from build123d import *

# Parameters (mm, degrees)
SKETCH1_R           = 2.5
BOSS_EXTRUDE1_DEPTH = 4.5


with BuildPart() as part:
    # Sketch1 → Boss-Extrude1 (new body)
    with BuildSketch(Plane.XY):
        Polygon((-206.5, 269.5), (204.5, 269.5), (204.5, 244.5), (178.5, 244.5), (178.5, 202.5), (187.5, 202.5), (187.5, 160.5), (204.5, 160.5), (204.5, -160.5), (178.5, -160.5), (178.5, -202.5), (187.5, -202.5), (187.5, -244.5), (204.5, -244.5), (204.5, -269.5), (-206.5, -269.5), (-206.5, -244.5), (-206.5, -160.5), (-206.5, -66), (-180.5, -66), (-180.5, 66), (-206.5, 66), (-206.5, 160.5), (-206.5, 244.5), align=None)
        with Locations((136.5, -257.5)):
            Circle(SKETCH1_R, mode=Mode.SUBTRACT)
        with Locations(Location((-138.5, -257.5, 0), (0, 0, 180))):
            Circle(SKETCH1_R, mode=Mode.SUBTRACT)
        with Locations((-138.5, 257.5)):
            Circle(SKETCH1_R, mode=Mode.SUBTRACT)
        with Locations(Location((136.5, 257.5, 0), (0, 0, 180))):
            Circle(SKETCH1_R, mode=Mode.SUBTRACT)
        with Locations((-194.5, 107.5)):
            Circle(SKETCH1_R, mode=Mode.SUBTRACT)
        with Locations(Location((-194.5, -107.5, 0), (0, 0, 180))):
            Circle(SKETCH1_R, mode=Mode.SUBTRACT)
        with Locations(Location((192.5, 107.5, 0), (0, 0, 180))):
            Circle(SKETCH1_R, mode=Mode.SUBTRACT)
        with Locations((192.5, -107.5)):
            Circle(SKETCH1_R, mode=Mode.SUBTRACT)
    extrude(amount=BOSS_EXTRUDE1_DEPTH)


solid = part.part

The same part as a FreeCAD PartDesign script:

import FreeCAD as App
import Part
import Sketcher
Q = App.Units.Quantity


def add_polygon(sketch, points):
    """Adds a closed chain of lines whose ends are joined by coincident constraints."""
    first, n = sketch.GeometryCount, len(points)
    for a, b in zip(points, points[1:] + points[:1]):
        sketch.addGeometry(Part.LineSegment(App.Vector(*a, 0), App.Vector(*b, 0)), False)
    for i in range(n):
        sketch.addConstraint(Sketcher.Constraint("Coincident", first + i, 2, first + (i + 1) % n, 1))

doc = App.newDocument("Part")
params = doc.addObject("Spreadsheet::Sheet", "Params")
for row, (alias, value) in enumerate([
    ("sketch1_diameter", "5 mm"),
    ("sketch1_width", "411 mm"),
    ("sketch1_width2", "26 mm"),
    ("sketch1_width3", "17 mm"),
    ("sketch1_height", "132 mm"),
    ("pad1_length", "4.5 mm"),
], start=1):
    params.set(f"A{row}", alias)
    params.set(f"B{row}", "=" + value)
    params.setAlias(f"B{row}", alias)

body = doc.addObject("PartDesign::Body", "Body")

# Sketch on XY plane
sketch1 = body.newObject("Sketcher::SketchObject", "Sketch")
sketch1.AttachmentSupport = (doc.getObject("XY_Plane"), [""])
sketch1.MapMode = "FlatFace"
add_polygon(sketch1, [(204.5, 269.5), (-206.5, 269.5), (-206.5, 66), (-180.5, 66), (-180.5, -66), (-206.5, -66), (-206.5, -269.5), (204.5, -269.5), (204.5, -244.5), (187.5, -244.5), (187.5, -202.5), (178.5, -202.5), (178.5, -160.5), (204.5, -160.5), (204.5, 160.5), (187.5, 160.5), (187.5, 202.5), (178.5, 202.5), (178.5, 244.5), (204.5, 244.5)])  # lines 0-19
sketch1.addGeometry(Part.Circle(App.Vector(136.5, -257.5, 0), App.Vector(0, 0, 1), 2.5), False)  # 20
sketch1.addGeometry(Part.Circle(App.Vector(192.5, -107.5, 0), App.Vector(0, 0, 1), 2.5), False)  # 21
sketch1.addGeometry(Part.Circle(App.Vector(-138.5, -257.5, 0), App.Vector(0, 0, 1), 2.5), False)  # 22
sketch1.addGeometry(Part.Circle(App.Vector(-194.5, -107.5, 0), App.Vector(0, 0, 1), 2.5), False)  # 23
sketch1.addGeometry(Part.Circle(App.Vector(192.5, 107.5, 0), App.Vector(0, 0, 1), 2.5), False)  # 24
sketch1.addGeometry(Part.Circle(App.Vector(136.5, 257.5, 0), App.Vector(0, 0, 1), 2.5), False)  # 25
sketch1.addGeometry(Part.Circle(App.Vector(-194.5, 107.5, 0), App.Vector(0, 0, 1), 2.5), False)  # 26
sketch1.addGeometry(Part.Circle(App.Vector(-138.5, 257.5, 0), App.Vector(0, 0, 1), 2.5), False)  # 27
sketch1.addConstraint([
    Sketcher.Constraint("Horizontal", 0),
    Sketcher.Constraint("Vertical", 1),
    Sketcher.Constraint("Horizontal", 2),
    Sketcher.Constraint("Vertical", 3),
    Sketcher.Constraint("Horizontal", 4),
    Sketcher.Constraint("Vertical", 5),
    Sketcher.Constraint("Horizontal", 6),
    Sketcher.Constraint("Vertical", 7),
    Sketcher.Constraint("Horizontal", 8),
    Sketcher.Constraint("Vertical", 9),
    Sketcher.Constraint("Horizontal", 10),
    Sketcher.Constraint("Vertical", 11),
    Sketcher.Constraint("Horizontal", 12),
    Sketcher.Constraint("Vertical", 13),
    Sketcher.Constraint("Horizontal", 14),
    Sketcher.Constraint("Vertical", 15),
    Sketcher.Constraint("Horizontal", 16),
    Sketcher.Constraint("Vertical", 17),
    Sketcher.Constraint("Horizontal", 18),
    Sketcher.Constraint("Vertical", 19),
    Sketcher.Constraint("Equal", 20, 21),
    Sketcher.Constraint("Equal", 21, 22),
    Sketcher.Constraint("Equal", 22, 23),
    Sketcher.Constraint("Equal", 23, 24),
    Sketcher.Constraint("Equal", 24, 25),
    Sketcher.Constraint("Equal", 25, 26),
    Sketcher.Constraint("Equal", 26, 27),
    Sketcher.Constraint("Symmetric", 21, 3, 24, 3, -1),
    Sketcher.Constraint("Symmetric", 20, 3, 25, 3, -1),
    Sketcher.Constraint("Symmetric", 23, 3, 26, 3, -1),
    Sketcher.Constraint("Symmetric", 22, 3, 27, 3, -1),
    Sketcher.Constraint("Symmetric", 1, 2, 4, 2, -1),
    Sketcher.Constraint("Symmetric", 9, 2, 15, 2, -1),
    Sketcher.Constraint("Symmetric", 7, 2, 18, 2, -1),
    Sketcher.Constraint("Horizontal", 20, 3, 22, 3),
    Sketcher.Constraint("Horizontal", 21, 3, 23, 3),
    Sketcher.Constraint("Vertical", 7, 2, 12, 2),
    Sketcher.Constraint("Vertical", 11, 2, 16, 2),
    Sketcher.Constraint("Equal", 4, 12),
    Sketcher.Constraint("Equal", 1, 5),
    Sketcher.Constraint("Equal", 9, 11),
    Sketcher.Constraint("Equal", 11, 15),
    Sketcher.Constraint("Diameter", 20, Q("5 mm")),
    Sketcher.Constraint("DistanceX", 0, 2, 0, 1, Q("411 mm")),
    Sketcher.Constraint("DistanceX", 2, 1, 2, 2, Q("26 mm")),
    Sketcher.Constraint("DistanceX", 8, 2, 8, 1, Q("17 mm")),
    Sketcher.Constraint("DistanceY", 3, 2, 3, 1, Q("132 mm")),
    Sketcher.Constraint("DistanceY", 7, 1, 7, 2, Q("25 mm")),
    Sketcher.Constraint("DistanceY", 9, 1, 9, 2, Q("42 mm")),
    Sketcher.Constraint("DistanceY", 13, 1, 13, 2, Q("321 mm")),
    Sketcher.Constraint("DistanceX", 20, 3, 21, 3, Q("56 mm")),
    Sketcher.Constraint("DistanceY", 20, 3, 21, 3, Q("150 mm")),
    Sketcher.Constraint("DistanceX", 22, 3, 20, 3, Q("275 mm")),
    Sketcher.Constraint("DistanceX", 23, 3, 22, 3, Q("56 mm")),
    Sketcher.Constraint("DistanceY", 21, 3, 24, 3, Q("215 mm")),
    Sketcher.Constraint("DistanceX", 0, 2, 27, 3, Q("68 mm")),
    Sketcher.Constraint("DistanceX", -1, 1, 20, 3, Q("136.5 mm")),
])
sketch1.setExpression("Constraints[62]", "Params.sketch1_diameter")
sketch1.setExpression("Constraints[63]", "Params.sketch1_width")
sketch1.setExpression("Constraints[64]", "Params.sketch1_width2")
sketch1.setExpression("Constraints[65]", "Params.sketch1_width3")
sketch1.setExpression("Constraints[66]", "Params.sketch1_height")
pad1 = body.newObject("PartDesign::Pad", "Pad")
pad1.Profile = sketch1
pad1.setExpression("Length", "Params.pad1_length")

doc.recompute()
